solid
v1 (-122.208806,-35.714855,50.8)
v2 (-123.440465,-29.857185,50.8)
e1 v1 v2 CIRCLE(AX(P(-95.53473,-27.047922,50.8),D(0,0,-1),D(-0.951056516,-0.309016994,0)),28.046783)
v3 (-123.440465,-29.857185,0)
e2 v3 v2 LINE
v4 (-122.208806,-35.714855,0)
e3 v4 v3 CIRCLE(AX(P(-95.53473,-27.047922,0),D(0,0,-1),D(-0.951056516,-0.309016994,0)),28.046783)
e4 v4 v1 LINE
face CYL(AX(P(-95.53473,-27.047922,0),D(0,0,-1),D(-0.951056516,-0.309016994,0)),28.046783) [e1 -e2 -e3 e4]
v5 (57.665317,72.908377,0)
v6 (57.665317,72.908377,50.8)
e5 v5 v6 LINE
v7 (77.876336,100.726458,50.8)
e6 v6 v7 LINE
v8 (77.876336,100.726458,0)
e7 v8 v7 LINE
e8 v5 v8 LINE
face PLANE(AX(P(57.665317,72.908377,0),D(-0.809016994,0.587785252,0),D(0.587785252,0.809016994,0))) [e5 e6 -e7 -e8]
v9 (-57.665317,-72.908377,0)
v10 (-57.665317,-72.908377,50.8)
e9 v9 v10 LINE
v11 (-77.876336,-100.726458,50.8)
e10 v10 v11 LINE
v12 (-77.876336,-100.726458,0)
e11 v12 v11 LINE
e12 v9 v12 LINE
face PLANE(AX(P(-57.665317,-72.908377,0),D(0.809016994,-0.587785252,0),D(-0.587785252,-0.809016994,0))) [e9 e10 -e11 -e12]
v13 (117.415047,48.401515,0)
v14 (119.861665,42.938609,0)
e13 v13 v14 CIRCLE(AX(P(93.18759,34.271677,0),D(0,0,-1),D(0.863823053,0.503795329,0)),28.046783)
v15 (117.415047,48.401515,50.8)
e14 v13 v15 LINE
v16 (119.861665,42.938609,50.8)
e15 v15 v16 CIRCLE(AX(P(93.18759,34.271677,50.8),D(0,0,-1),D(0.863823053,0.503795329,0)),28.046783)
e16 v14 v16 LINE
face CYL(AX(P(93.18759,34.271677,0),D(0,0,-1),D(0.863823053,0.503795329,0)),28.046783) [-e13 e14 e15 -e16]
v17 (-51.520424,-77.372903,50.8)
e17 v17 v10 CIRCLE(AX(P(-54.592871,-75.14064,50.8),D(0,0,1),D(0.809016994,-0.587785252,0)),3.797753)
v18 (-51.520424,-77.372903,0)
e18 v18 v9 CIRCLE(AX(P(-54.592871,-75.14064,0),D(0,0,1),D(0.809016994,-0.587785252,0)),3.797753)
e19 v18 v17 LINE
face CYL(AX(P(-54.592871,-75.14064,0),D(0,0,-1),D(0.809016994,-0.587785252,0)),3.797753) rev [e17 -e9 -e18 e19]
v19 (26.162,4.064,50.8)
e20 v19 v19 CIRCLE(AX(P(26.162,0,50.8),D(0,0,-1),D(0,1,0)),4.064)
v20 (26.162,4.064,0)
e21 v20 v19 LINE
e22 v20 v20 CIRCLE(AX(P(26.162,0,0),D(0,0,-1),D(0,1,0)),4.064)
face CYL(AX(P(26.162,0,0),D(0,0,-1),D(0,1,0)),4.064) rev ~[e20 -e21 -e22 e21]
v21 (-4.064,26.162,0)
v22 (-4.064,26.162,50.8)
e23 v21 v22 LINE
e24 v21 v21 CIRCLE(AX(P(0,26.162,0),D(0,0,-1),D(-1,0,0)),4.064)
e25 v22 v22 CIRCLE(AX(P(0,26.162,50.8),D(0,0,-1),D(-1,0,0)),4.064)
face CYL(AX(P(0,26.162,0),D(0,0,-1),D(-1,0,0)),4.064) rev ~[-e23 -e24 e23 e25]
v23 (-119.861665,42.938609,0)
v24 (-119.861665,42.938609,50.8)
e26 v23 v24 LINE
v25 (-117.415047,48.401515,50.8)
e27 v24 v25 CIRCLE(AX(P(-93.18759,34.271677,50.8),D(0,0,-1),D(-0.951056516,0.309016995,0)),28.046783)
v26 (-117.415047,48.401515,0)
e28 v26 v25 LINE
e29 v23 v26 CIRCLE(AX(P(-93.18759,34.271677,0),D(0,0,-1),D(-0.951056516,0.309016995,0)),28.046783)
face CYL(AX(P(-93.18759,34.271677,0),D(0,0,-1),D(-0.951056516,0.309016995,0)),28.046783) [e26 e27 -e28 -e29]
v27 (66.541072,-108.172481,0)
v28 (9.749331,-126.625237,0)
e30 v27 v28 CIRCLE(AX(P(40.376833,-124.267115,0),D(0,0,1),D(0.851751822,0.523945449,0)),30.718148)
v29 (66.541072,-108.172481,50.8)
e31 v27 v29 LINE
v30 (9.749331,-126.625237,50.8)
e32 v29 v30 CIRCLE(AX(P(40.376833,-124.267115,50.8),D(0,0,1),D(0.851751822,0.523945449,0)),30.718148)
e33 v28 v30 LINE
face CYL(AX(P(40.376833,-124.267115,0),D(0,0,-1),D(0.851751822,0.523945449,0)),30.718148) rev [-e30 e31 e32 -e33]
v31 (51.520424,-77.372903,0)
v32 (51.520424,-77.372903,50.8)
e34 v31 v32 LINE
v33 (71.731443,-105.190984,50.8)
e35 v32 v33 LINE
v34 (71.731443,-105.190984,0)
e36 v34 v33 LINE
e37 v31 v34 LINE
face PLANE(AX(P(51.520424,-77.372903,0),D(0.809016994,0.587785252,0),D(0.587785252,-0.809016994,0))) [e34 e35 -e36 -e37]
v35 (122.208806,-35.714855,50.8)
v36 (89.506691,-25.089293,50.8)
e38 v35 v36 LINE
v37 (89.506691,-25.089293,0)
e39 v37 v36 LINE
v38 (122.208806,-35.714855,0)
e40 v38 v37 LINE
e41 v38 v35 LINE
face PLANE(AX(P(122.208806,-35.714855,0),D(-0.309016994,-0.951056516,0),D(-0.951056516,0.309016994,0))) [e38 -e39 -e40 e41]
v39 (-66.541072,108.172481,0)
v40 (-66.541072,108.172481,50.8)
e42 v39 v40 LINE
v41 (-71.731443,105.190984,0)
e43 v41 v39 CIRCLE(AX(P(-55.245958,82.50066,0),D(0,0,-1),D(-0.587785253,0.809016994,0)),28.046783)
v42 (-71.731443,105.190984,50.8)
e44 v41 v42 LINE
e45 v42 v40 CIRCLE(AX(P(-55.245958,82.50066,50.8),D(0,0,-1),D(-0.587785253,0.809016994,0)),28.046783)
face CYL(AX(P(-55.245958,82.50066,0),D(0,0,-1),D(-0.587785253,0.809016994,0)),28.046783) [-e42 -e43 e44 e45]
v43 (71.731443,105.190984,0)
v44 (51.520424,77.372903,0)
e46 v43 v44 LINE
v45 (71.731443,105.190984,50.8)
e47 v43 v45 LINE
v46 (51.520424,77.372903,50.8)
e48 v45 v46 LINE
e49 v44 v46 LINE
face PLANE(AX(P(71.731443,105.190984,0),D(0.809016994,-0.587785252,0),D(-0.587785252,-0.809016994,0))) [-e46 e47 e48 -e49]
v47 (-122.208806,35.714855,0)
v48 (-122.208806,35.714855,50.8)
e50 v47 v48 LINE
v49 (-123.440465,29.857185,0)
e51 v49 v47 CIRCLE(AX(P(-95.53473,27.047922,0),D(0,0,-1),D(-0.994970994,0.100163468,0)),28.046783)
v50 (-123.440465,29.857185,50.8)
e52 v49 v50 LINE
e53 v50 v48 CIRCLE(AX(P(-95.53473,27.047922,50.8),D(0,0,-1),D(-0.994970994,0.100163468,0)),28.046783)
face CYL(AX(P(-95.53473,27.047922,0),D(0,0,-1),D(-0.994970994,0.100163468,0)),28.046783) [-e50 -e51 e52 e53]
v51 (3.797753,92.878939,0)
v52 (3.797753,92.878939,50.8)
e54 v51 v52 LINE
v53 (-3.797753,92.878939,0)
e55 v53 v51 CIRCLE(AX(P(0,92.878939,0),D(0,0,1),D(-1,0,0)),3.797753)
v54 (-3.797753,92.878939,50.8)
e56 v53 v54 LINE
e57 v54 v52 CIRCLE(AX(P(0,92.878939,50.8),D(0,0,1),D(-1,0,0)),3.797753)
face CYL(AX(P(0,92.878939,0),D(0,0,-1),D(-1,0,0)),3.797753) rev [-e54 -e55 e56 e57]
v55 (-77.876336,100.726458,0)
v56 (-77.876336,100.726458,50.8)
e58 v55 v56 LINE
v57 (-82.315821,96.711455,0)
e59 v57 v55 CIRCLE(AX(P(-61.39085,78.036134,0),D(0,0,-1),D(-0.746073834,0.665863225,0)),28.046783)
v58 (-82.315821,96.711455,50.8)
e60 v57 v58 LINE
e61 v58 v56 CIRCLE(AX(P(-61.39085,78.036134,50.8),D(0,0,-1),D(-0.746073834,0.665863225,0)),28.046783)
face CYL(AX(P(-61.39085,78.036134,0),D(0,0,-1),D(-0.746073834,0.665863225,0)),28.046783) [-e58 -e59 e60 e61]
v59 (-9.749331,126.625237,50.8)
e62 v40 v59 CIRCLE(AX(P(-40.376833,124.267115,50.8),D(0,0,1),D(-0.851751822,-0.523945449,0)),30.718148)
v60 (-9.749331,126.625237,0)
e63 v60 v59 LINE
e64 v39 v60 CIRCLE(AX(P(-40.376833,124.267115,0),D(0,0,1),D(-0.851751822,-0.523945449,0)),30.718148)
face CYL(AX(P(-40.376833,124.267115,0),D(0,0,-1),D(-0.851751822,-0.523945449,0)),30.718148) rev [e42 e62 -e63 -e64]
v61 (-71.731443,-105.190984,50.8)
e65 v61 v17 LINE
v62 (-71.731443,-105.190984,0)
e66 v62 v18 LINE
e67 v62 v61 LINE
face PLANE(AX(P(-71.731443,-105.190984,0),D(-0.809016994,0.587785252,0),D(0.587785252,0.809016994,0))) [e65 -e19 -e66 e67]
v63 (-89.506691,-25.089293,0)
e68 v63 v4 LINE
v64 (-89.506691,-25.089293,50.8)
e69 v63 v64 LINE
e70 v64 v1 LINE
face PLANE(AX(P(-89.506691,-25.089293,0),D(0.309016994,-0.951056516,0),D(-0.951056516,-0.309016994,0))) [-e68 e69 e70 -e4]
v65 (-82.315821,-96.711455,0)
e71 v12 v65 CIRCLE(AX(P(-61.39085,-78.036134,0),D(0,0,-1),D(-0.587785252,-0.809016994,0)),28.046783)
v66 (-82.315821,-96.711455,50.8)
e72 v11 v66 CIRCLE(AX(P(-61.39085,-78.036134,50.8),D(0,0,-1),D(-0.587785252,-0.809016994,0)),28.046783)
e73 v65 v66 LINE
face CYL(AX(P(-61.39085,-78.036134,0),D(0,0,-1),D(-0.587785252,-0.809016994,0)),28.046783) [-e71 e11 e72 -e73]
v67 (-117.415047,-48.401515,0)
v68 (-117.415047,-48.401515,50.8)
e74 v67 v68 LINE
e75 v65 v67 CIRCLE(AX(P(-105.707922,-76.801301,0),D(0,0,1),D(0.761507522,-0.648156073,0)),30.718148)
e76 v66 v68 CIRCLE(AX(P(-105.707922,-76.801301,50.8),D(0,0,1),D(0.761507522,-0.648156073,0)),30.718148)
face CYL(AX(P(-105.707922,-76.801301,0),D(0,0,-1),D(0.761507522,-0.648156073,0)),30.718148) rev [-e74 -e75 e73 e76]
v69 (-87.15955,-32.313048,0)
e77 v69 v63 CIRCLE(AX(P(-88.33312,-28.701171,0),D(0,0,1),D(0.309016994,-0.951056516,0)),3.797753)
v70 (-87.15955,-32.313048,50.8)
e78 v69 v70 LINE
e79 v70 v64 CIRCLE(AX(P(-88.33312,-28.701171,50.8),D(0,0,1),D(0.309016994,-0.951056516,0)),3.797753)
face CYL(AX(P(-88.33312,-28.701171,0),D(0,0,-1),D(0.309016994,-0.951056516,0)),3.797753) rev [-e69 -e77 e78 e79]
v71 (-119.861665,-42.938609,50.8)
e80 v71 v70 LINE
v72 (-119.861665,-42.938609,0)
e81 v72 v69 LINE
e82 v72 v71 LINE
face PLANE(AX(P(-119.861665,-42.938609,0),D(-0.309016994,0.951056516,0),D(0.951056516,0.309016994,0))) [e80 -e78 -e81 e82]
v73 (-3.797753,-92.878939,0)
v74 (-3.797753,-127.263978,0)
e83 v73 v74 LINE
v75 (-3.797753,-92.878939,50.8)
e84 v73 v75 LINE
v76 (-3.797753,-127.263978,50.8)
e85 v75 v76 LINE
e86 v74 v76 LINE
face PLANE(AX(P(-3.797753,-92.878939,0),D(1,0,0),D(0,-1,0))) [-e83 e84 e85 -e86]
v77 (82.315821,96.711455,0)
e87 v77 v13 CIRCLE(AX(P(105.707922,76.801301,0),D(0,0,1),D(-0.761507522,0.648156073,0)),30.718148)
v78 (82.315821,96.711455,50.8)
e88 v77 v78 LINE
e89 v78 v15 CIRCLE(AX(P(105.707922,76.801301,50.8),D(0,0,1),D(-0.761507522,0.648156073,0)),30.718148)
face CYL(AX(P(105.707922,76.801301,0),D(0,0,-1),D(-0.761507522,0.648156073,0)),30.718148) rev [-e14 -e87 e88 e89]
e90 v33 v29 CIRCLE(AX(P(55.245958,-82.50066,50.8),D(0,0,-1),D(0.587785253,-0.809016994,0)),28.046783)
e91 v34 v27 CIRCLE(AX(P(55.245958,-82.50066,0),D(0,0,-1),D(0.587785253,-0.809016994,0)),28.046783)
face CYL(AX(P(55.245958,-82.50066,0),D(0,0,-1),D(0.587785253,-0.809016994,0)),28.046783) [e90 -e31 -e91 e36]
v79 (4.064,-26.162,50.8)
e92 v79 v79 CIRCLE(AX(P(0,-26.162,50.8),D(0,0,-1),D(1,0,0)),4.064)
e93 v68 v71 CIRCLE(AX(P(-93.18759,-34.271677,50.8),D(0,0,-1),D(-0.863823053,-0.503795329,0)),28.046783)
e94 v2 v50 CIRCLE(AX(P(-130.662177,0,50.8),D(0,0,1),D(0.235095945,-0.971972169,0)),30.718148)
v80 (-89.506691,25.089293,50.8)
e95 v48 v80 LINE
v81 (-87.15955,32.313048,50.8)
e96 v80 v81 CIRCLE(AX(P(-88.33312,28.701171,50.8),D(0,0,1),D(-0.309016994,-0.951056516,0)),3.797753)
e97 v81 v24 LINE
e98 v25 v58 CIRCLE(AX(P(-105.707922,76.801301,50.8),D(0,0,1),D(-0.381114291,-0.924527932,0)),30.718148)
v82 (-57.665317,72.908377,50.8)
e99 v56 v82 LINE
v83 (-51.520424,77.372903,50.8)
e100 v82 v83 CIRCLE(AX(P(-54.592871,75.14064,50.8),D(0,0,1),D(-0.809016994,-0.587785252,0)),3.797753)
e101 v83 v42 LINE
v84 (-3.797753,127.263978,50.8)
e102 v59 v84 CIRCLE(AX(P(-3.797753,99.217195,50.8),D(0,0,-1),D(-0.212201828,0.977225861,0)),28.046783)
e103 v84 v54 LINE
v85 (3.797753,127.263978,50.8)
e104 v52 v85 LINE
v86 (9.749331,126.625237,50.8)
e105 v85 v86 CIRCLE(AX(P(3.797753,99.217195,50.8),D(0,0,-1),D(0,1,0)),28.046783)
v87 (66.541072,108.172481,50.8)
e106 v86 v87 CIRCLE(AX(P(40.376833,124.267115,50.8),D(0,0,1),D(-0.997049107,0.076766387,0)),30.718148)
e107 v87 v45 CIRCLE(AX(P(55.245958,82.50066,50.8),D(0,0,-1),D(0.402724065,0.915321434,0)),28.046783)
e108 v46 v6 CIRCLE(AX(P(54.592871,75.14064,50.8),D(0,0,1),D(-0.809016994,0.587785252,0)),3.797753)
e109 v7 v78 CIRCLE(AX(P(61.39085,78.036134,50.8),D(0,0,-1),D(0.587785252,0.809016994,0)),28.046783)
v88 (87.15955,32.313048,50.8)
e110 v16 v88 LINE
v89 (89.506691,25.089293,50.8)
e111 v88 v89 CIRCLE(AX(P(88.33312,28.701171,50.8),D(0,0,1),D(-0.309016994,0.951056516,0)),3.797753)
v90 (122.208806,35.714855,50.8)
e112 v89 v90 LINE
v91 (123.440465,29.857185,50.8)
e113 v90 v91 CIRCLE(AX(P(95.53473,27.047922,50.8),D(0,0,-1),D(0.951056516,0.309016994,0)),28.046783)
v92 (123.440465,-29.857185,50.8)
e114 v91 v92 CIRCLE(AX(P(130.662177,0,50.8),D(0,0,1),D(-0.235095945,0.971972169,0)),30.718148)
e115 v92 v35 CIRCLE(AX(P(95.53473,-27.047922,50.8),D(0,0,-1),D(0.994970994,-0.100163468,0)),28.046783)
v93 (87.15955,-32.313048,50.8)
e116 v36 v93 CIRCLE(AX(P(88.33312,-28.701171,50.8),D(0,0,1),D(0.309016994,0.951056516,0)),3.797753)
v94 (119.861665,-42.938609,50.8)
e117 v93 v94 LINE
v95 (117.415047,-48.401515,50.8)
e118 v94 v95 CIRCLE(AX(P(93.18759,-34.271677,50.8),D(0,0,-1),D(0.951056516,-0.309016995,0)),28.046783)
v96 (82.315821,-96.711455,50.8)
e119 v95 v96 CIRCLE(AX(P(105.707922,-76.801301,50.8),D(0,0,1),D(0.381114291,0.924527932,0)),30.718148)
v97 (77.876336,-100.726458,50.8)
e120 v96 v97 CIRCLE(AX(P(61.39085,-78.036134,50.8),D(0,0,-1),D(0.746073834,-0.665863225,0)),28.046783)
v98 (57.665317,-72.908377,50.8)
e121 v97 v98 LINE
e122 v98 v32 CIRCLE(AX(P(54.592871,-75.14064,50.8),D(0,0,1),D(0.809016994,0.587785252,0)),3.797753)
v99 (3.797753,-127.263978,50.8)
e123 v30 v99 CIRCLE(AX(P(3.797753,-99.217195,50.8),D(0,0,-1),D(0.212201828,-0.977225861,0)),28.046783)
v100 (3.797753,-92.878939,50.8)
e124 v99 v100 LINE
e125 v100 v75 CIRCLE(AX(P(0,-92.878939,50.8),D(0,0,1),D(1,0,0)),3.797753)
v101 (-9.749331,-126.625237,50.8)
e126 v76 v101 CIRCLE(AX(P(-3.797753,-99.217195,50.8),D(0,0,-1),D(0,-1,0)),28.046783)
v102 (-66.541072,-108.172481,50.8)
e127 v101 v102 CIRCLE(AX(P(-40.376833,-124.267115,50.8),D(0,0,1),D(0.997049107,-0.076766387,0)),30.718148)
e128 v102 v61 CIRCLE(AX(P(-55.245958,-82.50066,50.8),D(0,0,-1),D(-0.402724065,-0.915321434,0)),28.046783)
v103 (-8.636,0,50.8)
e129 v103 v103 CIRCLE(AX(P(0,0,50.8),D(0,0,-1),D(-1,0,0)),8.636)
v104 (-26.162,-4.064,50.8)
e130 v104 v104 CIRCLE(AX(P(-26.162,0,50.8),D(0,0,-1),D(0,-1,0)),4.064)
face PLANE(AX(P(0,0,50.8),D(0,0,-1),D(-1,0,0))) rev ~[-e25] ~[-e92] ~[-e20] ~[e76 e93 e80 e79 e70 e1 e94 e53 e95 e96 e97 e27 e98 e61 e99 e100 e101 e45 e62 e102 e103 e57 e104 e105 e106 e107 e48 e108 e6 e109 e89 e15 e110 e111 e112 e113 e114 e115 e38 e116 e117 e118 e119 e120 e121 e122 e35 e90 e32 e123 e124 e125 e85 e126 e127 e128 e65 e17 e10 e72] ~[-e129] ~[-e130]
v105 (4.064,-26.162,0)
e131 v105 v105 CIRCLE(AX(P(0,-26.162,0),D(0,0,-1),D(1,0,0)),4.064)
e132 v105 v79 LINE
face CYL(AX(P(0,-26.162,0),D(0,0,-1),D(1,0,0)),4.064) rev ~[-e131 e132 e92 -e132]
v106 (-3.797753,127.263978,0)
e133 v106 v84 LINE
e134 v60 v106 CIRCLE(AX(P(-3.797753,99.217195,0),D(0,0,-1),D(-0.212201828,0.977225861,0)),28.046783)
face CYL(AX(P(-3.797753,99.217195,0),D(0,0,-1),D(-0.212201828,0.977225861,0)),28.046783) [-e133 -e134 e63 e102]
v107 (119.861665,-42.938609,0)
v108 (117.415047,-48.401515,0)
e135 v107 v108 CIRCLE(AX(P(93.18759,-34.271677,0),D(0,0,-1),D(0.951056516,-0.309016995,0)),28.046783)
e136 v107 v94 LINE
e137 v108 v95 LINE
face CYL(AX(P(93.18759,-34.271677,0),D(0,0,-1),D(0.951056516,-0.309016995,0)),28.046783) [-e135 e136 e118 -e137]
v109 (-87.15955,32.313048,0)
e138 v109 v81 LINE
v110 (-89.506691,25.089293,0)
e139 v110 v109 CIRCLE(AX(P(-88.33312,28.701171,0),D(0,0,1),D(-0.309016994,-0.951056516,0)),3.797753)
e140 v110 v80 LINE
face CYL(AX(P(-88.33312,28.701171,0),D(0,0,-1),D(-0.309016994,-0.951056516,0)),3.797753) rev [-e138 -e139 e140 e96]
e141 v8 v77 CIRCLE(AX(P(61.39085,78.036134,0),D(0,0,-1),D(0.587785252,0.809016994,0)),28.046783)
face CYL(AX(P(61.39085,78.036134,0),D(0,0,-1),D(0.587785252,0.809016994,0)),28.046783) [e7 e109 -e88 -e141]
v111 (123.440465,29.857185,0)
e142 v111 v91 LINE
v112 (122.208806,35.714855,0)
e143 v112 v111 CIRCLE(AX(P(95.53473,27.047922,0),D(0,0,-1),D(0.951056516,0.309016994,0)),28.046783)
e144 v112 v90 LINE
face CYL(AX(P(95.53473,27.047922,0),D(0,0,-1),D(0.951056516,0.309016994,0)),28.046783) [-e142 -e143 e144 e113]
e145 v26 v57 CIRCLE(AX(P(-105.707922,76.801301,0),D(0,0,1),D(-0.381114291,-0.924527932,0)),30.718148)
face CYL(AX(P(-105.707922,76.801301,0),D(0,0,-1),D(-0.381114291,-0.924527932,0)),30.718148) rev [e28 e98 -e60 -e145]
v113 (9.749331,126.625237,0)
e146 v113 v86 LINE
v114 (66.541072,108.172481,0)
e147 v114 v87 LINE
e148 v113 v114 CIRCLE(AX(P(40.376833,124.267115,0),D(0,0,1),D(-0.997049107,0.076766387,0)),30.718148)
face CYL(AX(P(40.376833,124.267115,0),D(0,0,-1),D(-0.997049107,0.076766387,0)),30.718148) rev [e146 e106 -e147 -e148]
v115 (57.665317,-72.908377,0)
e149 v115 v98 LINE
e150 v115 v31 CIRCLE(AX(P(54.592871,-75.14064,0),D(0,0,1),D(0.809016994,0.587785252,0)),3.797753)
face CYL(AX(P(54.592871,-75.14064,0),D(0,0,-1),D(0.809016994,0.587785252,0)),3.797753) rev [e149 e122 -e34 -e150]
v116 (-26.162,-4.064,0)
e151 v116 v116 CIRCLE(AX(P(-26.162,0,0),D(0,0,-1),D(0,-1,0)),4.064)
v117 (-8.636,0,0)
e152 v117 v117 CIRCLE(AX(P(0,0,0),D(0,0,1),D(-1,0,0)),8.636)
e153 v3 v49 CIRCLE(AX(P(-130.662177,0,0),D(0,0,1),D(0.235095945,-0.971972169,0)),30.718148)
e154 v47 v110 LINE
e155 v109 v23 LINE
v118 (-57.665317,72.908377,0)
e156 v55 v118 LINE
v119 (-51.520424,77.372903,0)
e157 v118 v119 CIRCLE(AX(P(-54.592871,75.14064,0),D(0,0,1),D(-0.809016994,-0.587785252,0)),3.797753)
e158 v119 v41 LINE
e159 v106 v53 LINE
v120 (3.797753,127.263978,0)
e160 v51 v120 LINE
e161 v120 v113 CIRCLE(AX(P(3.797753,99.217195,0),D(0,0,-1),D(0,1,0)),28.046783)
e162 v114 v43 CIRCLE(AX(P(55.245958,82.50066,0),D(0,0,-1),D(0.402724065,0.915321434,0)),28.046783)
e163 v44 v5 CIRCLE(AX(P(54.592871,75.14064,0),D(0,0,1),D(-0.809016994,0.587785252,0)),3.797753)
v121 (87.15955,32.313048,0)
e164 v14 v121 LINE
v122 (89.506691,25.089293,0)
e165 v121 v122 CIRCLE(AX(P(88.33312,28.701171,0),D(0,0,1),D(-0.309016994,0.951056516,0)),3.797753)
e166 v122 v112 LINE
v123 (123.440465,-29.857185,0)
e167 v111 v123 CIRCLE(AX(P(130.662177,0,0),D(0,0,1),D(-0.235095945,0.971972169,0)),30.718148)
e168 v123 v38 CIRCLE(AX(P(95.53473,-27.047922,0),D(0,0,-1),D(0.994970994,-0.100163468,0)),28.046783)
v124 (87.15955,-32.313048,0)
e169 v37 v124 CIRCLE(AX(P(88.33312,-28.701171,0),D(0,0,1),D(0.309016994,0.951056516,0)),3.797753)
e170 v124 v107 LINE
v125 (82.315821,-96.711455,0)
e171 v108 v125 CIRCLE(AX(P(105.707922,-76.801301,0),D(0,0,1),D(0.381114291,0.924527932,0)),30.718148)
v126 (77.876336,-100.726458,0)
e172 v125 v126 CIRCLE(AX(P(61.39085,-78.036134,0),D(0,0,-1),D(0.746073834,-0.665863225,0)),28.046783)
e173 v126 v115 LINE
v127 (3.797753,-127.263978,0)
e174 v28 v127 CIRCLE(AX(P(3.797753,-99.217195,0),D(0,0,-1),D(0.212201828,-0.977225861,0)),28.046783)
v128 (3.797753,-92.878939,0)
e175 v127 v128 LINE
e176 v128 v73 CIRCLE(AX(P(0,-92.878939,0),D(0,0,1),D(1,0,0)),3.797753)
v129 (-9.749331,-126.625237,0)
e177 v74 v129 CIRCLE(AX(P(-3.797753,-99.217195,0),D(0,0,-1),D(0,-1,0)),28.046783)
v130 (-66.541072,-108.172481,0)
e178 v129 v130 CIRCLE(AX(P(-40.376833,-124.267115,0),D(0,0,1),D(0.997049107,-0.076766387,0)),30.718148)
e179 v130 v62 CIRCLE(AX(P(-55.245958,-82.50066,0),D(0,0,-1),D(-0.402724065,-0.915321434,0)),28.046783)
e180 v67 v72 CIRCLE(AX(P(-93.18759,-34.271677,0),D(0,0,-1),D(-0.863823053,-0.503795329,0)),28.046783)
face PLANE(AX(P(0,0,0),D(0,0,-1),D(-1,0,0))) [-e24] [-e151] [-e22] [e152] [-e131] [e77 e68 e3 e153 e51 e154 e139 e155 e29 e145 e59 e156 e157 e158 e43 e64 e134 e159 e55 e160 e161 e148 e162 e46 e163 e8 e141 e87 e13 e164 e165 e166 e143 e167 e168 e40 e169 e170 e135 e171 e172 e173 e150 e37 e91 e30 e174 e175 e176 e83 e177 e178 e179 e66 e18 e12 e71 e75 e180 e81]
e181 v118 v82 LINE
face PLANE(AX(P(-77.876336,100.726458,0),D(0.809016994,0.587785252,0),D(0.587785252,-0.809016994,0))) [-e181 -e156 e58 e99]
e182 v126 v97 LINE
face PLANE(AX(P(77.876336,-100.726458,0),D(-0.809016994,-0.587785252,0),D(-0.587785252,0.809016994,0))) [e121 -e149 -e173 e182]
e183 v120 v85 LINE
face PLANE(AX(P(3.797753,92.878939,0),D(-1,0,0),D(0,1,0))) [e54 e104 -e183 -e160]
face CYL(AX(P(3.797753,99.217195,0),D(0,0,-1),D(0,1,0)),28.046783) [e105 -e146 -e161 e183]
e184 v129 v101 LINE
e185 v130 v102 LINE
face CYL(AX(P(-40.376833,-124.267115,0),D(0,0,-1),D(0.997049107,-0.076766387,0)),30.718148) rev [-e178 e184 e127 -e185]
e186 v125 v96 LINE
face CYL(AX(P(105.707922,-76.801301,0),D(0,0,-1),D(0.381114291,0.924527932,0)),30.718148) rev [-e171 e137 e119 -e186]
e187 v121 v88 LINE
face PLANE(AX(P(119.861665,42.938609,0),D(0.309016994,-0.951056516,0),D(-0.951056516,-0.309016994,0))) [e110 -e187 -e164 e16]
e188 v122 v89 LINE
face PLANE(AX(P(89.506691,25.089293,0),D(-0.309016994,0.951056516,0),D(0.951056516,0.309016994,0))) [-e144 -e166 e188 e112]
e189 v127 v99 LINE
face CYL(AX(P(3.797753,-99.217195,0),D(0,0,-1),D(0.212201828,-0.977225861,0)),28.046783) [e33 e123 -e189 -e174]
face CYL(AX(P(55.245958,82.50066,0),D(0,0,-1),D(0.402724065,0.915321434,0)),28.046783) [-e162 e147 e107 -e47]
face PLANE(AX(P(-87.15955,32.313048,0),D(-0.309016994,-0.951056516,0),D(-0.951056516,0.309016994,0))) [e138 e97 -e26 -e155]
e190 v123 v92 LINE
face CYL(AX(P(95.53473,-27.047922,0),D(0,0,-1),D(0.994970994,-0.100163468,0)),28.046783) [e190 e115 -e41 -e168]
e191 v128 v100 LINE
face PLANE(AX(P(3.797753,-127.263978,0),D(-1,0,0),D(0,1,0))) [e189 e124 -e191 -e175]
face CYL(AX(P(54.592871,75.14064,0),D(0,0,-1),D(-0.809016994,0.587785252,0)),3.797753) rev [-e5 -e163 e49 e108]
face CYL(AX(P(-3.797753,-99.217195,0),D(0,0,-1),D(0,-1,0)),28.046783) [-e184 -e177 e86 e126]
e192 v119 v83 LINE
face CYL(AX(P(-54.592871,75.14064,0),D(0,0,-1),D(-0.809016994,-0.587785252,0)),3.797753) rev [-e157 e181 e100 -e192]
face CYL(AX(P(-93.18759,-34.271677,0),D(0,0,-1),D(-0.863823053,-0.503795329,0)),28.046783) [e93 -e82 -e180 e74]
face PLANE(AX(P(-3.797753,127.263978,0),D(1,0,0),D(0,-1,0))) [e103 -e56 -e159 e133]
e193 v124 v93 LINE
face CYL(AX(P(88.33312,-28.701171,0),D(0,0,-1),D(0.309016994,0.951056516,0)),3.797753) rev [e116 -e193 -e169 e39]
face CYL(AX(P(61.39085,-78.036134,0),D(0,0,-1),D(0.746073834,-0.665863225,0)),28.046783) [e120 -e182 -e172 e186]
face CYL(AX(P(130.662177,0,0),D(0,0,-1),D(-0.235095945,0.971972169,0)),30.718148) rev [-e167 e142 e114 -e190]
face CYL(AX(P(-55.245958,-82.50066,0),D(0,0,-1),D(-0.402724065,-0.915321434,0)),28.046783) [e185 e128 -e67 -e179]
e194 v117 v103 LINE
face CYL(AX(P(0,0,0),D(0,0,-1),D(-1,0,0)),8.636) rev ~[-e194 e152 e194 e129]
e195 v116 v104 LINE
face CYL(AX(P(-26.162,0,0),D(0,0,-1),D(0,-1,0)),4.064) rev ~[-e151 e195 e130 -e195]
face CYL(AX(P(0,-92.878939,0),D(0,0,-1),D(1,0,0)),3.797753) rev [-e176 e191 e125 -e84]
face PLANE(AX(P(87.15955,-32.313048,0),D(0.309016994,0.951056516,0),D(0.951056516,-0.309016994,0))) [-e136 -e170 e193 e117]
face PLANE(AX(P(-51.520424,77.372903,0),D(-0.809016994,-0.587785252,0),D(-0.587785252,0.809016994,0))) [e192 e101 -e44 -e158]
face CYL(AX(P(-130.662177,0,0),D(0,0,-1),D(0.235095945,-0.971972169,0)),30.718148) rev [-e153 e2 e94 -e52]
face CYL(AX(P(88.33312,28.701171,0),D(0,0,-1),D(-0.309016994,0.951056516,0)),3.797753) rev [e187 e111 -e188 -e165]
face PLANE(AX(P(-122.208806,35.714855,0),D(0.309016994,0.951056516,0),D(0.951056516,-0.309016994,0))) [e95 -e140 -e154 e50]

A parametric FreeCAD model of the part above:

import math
import FreeCAD as App
import Part
import Sketcher
Q = App.Units.Quantity

doc = App.newDocument("Part")
body = doc.addObject("PartDesign::Body", "Body")

# Sketch on XY plane
sketch1 = body.newObject("Sketcher::SketchObject", "Sketch")
sketch1.AttachmentSupport = (doc.getObject("XY_Plane"), [""])
sketch1.MapMode = "FlatFace"
sketch1.addGeometry(Part.LineSegment(App.Vector(-3.8, 92.9, 0), App.Vector(-3.8, 127.3, 0)), False)
sketch1.addGeometry(Part.ArcOfCircle(Part.Circle(App.Vector(-3.8, 99.2, 0), App.Vector(0, 0, 1), 28), math.radians(90), math.radians(102.25)), False)
sketch1.addGeometry(Part.ArcOfCircle(Part.Circle(App.Vector(-40.4, 124.3, 0), App.Vector(0, 0, 1), 30.7), math.radians(-148), math.radians(4)), False)
sketch1.addGeometry(Part.ArcOfCircle(Part.Circle(App.Vector(-55.2, 82.5, 0), App.Vector(0, 0, 1), 28), math.radians(113.75), math.radians(126)), False)
sketch1.addGeometry(Part.LineSegment(App.Vector(-71.7, 105.2, 0), App.Vector(-51.5, 77.4, 0)), False)
sketch1.addGeometry(Part.ArcOfCircle(Part.Circle(App.Vector(-54.6, 75.1, 0), App.Vector(0, 0, 1), 3.8), math.radians(-144), math.radians(36)), False)
sketch1.addGeometry(Part.LineSegment(App.Vector(-57.7, 72.9, 0), App.Vector(-77.9, 100.7, 0)), False)
sketch1.addGeometry(Part.ArcOfCircle(Part.Circle(App.Vector(-61.4, 78, 0), App.Vector(0, 0, 1), 28), math.radians(126), math.radians(138.25)), False)
sketch1.addGeometry(Part.ArcOfCircle(Part.Circle(App.Vector(-105.7, 76.8, 0), App.Vector(0, 0, 1), 30.7), math.radians(-112), math.radians(40)), False)
sketch1.addGeometry(Part.ArcOfCircle(Part.Circle(App.Vector(-93.2, 34.3, 0), App.Vector(0, 0, 1), 28), math.radians(149.75), math.radians(162)), False)
sketch1.addGeometry(Part.LineSegment(App.Vector(-119.9, 42.9, 0), App.Vector(-87.2, 32.3, 0)), False)
sketch1.addGeometry(Part.ArcOfCircle(Part.Circle(App.Vector(-88.3, 28.7, 0), App.Vector(0, 0, 1), 3.8), math.radians(-108), math.radians(72)), False)
sketch1.addGeometry(Part.LineSegment(App.Vector(-89.5, 25.1, 0), App.Vector(-122.2, 35.7, 0)), False)
sketch1.addGeometry(Part.ArcOfCircle(Part.Circle(App.Vector(-95.5, 27, 0), App.Vector(0, 0, 1), 28), math.radians(162), math.radians(174.25)), False)
sketch1.addGeometry(Part.ArcOfCircle(Part.Circle(App.Vector(-130.7, 0, 0), App.Vector(0, 0, 1), 30.7), math.radians(-76), math.radians(76)), False)
sketch1.addGeometry(Part.ArcOfCircle(Part.Circle(App.Vector(-95.5, -27, 0), App.Vector(0, 0, 1), 28), math.radians(-174.25), math.radians(-162)), False)
sketch1.addGeometry(Part.LineSegment(App.Vector(-122.2, -35.7, 0), App.Vector(-89.5, -25.1, 0)), False)
sketch1.addGeometry(Part.ArcOfCircle(Part.Circle(App.Vector(-88.3, -28.7, 0), App.Vector(0, 0, 1), 3.8), math.radians(-72), math.radians(108)), False)
sketch1.addGeometry(Part.LineSegment(App.Vector(-87.2, -32.3, 0), App.Vector(-119.9, -42.9, 0)), False)
sketch1.addGeometry(Part.ArcOfCircle(Part.Circle(App.Vector(-93.2, -34.3, 0), App.Vector(0, 0, 1), 28), math.radians(-162), math.radians(-149.75)), False)
sketch1.addGeometry(Part.ArcOfCircle(Part.Circle(App.Vector(-105.7, -76.8, 0), App.Vector(0, 0, 1), 30.7), math.radians(-40), math.radians(112)), False)
sketch1.addGeometry(Part.ArcOfCircle(Part.Circle(App.Vector(-61.4, -78, 0), App.Vector(0, 0, 1), 28), math.radians(-138.25), math.radians(-126)), False)
sketch1.addGeometry(Part.LineSegment(App.Vector(-77.9, -100.7, 0), App.Vector(-57.7, -72.9, 0)), False)
sketch1.addGeometry(Part.ArcOfCircle(Part.Circle(App.Vector(-54.6, -75.1, 0), App.Vector(0, 0, 1), 3.8), math.radians(-36), math.radians(144)), False)
sketch1.addGeometry(Part.LineSegment(App.Vector(-51.5, -77.4, 0), App.Vector(-71.7, -105.2, 0)), False)
sketch1.addGeometry(Part.ArcOfCircle(Part.Circle(App.Vector(-55.2, -82.5, 0), App.Vector(0, 0, 1), 28), math.radians(-126), math.radians(-113.75)), False)
sketch1.addGeometry(Part.ArcOfCircle(Part.Circle(App.Vector(-40.4, -124.3, 0), App.Vector(0, 0, 1), 30.7), math.radians(-4), math.radians(148)), False)
sketch1.addGeometry(Part.ArcOfCircle(Part.Circle(App.Vector(-3.8, -99.2, 0), App.Vector(0, 0, 1), 28), math.radians(-102.25), math.radians(-90)), False)
sketch1.addGeometry(Part.LineSegment(App.Vector(-3.8, -127.3, 0), App.Vector(-3.8, -92.9, 0)), False)
sketch1.addGeometry(Part.ArcOfCircle(Part.Circle(App.Vector(0, -92.9, 0), App.Vector(0, 0, 1), 3.8), math.radians(0), math.radians(180)), False)
sketch1.addGeometry(Part.LineSegment(App.Vector(3.8, -92.9, 0), App.Vector(3.8, -127.3, 0)), False)
sketch1.addGeometry(Part.ArcOfCircle(Part.Circle(App.Vector(3.8, -99.2, 0), App.Vector(0, 0, 1), 28), math.radians(-90), math.radians(-77.75)), False)
sketch1.addGeometry(Part.ArcOfCircle(Part.Circle(App.Vector(40.4, -124.3, 0), App.Vector(0, 0, 1), 30.7), math.radians(32), math.radians(184)), False)
sketch1.addGeometry(Part.ArcOfCircle(Part.Circle(App.Vector(55.2, -82.5, 0), App.Vector(0, 0, 1), 28), math.radians(-66.25), math.radians(-54)), False)
sketch1.addGeometry(Part.LineSegment(App.Vector(71.7, -105.2, 0), App.Vector(51.5, -77.4, 0)), False)
sketch1.addGeometry(Part.ArcOfCircle(Part.Circle(App.Vector(54.6, -75.1, 0), App.Vector(0, 0, 1), 3.8), math.radians(36), math.radians(216)), False)
sketch1.addGeometry(Part.LineSegment(App.Vector(57.7, -72.9, 0), App.Vector(77.9, -100.7, 0)), False)
sketch1.addGeometry(Part.ArcOfCircle(Part.Circle(App.Vector(61.4, -78, 0), App.Vector(0, 0, 1), 28), math.radians(-54), math.radians(-41.75)), False)
sketch1.addGeometry(Part.ArcOfCircle(Part.Circle(App.Vector(105.7, -76.8, 0), App.Vector(0, 0, 1), 30.7), math.radians(68), math.radians(220)), False)
sketch1.addGeometry(Part.ArcOfCircle(Part.Circle(App.Vector(93.2, -34.3, 0), App.Vector(0, 0, 1), 28), math.radians(-30.25), math.radians(-18)), False)
sketch1.addGeometry(Part.LineSegment(App.Vector(119.9, -42.9, 0), App.Vector(87.2, -32.3, 0)), False)
sketch1.addGeometry(Part.ArcOfCircle(Part.Circle(App.Vector(88.3, -28.7, 0), App.Vector(0, 0, 1), 3.8), math.radians(72), math.radians(252)), False)
sketch1.addGeometry(Part.LineSegment(App.Vector(89.5, -25.1, 0), App.Vector(122.2, -35.7, 0)), False)
sketch1.addGeometry(Part.ArcOfCircle(Part.Circle(App.Vector(95.5, -27, 0), App.Vector(0, 0, 1), 28), math.radians(-18), math.radians(-5.75)), False)
sketch1.addGeometry(Part.ArcOfCircle(Part.Circle(App.Vector(130.7, 0, 0), App.Vector(0, 0, 1), 30.7), math.radians(104), math.radians(256)), False)
sketch1.addGeometry(Part.ArcOfCircle(Part.Circle(App.Vector(95.5, 27, 0), App.Vector(0, 0, 1), 28), math.radians(5.75), math.radians(18)), False)
sketch1.addGeometry(Part.LineSegment(App.Vector(122.2, 35.7, 0), App.Vector(89.5, 25.1, 0)), False)
sketch1.addGeometry(Part.ArcOfCircle(Part.Circle(App.Vector(88.3, 28.7, 0), App.Vector(0, 0, 1), 3.8), math.radians(108), math.radians(288)), False)
sketch1.addGeometry(Part.LineSegment(App.Vector(87.2, 32.3, 0), App.Vector(119.9, 42.9, 0)), False)
sketch1.addGeometry(Part.ArcOfCircle(Part.Circle(App.Vector(93.2, 34.3, 0), App.Vector(0, 0, 1), 28), math.radians(18), math.radians(30.25)), False)
sketch1.addGeometry(Part.ArcOfCircle(Part.Circle(App.Vector(105.7, 76.8, 0), App.Vector(0, 0, 1), 30.7), math.radians(140), math.radians(292)), False)
sketch1.addGeometry(Part.ArcOfCircle(Part.Circle(App.Vector(61.4, 78, 0), App.Vector(0, 0, 1), 28), math.radians(41.75), math.radians(54)), False)
sketch1.addGeometry(Part.LineSegment(App.Vector(77.9, 100.7, 0), App.Vector(57.7, 72.9, 0)), False)
sketch1.addGeometry(Part.ArcOfCircle(Part.Circle(App.Vector(54.6, 75.1, 0), App.Vector(0, 0, 1), 3.8), math.radians(144), math.radians(324)), False)
sketch1.addGeometry(Part.LineSegment(App.Vector(51.5, 77.4, 0), App.Vector(71.7, 105.2, 0)), False)
sketch1.addGeometry(Part.ArcOfCircle(Part.Circle(App.Vector(55.2, 82.5, 0), App.Vector(0, 0, 1), 28), math.radians(54), math.radians(66.25)), False)
sketch1.addGeometry(Part.ArcOfCircle(Part.Circle(App.Vector(40.4, 124.3, 0), App.Vector(0, 0, 1), 30.7), math.radians(176), math.radians(328)), False)
sketch1.addGeometry(Part.ArcOfCircle(Part.Circle(App.Vector(3.8, 99.2, 0), App.Vector(0, 0, 1), 28), math.radians(77.75), math.radians(90)), False)
sketch1.addGeometry(Part.LineSegment(App.Vector(3.8, 127.3, 0), App.Vector(3.8, 92.9, 0)), False)
sketch1.addGeometry(Part.ArcOfCircle(Part.Circle(App.Vector(0, 92.9, 0), App.Vector(0, 0, 1), 3.8), math.radians(180), math.radians(360)), False)
sketch1.addConstraint(Sketcher.Constraint("Coincident", 0, 2, 1, 1))
sketch1.addConstraint(Sketcher.Constraint("Coincident", 1, 2, 2, 2))
sketch1.addConstraint(Sketcher.Constraint("Coincident", 2, 1, 3, 1))
sketch1.addConstraint(Sketcher.Constraint("Coincident", 3, 2, 4, 1))
sketch1.addConstraint(Sketcher.Constraint("Tangent", 4, 2, 5, 2))
sketch1.addConstraint(Sketcher.Constraint("Tangent", 5, 1, 6, 1))
sketch1.addConstraint(Sketcher.Constraint("Coincident", 6, 2, 7, 1))
sketch1.addConstraint(Sketcher.Constraint("Coincident", 7, 2, 8, 2))
sketch1.addConstraint(Sketcher.Constraint("Coincident", 8, 1, 9, 1))
sketch1.addConstraint(Sketcher.Constraint("Coincident", 9, 2, 10, 1))
sketch1.addConstraint(Sketcher.Constraint("Tangent", 10, 2, 11, 2))
sketch1.addConstraint(Sketcher.Constraint("Tangent", 11, 1, 12, 1))
sketch1.addConstraint(Sketcher.Constraint("Coincident", 12, 2, 13, 1))
sketch1.addConstraint(Sketcher.Constraint("Coincident", 13, 2, 14, 2))
sketch1.addConstraint(Sketcher.Constraint("Coincident", 14, 1, 15, 1))
sketch1.addConstraint(Sketcher.Constraint("Coincident", 15, 2, 16, 1))
sketch1.addConstraint(Sketcher.Constraint("Tangent", 16, 2, 17, 2))
sketch1.addConstraint(Sketcher.Constraint("Tangent", 17, 1, 18, 1))
sketch1.addConstraint(Sketcher.Constraint("Coincident", 18, 2, 19, 1))
sketch1.addConstraint(Sketcher.Constraint("Coincident", 19, 2, 20, 2))
sketch1.addConstraint(Sketcher.Constraint("Coincident", 20, 1, 21, 1))
sketch1.addConstraint(Sketcher.Constraint("Coincident", 21, 2, 22, 1))
sketch1.addConstraint(Sketcher.Constraint("Tangent", 22, 2, 23, 2))
sketch1.addConstraint(Sketcher.Constraint("Tangent", 23, 1, 24, 1))
sketch1.addConstraint(Sketcher.Constraint("Coincident", 24, 2, 25, 1))
sketch1.addConstraint(Sketcher.Constraint("Coincident", 25, 2, 26, 2))
sketch1.addConstraint(Sketcher.Constraint("Coincident", 26, 1, 27, 1))
sketch1.addConstraint(Sketcher.Constraint("Coincident", 27, 2, 28, 1))
sketch1.addConstraint(Sketcher.Constraint("Tangent", 28, 2, 29, 2))
sketch1.addConstraint(Sketcher.Constraint("Tangent", 29, 1, 30, 1))
sketch1.addConstraint(Sketcher.Constraint("Coincident", 30, 2, 31, 1))
sketch1.addConstraint(Sketcher.Constraint("Coincident", 31, 2, 32, 2))
sketch1.addConstraint(Sketcher.Constraint("Coincident", 32, 1, 33, 1))
sketch1.addConstraint(Sketcher.Constraint("Coincident", 33, 2, 34, 1))
sketch1.addConstraint(Sketcher.Constraint("Tangent", 34, 2, 35, 2))
sketch1.addConstraint(Sketcher.Constraint("Tangent", 35, 1, 36, 1))
sketch1.addConstraint(Sketcher.Constraint("Coincident", 36, 2, 37, 1))
sketch1.addConstraint(Sketcher.Constraint("Coincident", 37, 2, 38, 2))
sketch1.addConstraint(Sketcher.Constraint("Coincident", 38, 1, 39, 1))
sketch1.addConstraint(Sketcher.Constraint("Coincident", 39, 2, 40, 1))
sketch1.addConstraint(Sketcher.Constraint("Tangent", 40, 2, 41, 2))
sketch1.addConstraint(Sketcher.Constraint("Tangent", 41, 1, 42, 1))
sketch1.addConstraint(Sketcher.Constraint("Coincident", 42, 2, 43, 1))
sketch1.addConstraint(Sketcher.Constraint("Coincident", 43, 2, 44, 2))
sketch1.addConstraint(Sketcher.Constraint("Coincident", 44, 1, 45, 1))
sketch1.addConstraint(Sketcher.Constraint("Coincident", 45, 2, 46, 1))
sketch1.addConstraint(Sketcher.Constraint("Tangent", 46, 2, 47, 2))
sketch1.addConstraint(Sketcher.Constraint("Tangent", 47, 1, 48, 1))
sketch1.addConstraint(Sketcher.Constraint("Coincident", 48, 2, 49, 1))
sketch1.addConstraint(Sketcher.Constraint("Coincident", 49, 2, 50, 2))
sketch1.addConstraint(Sketcher.Constraint("Coincident", 50, 1, 51, 1))
sketch1.addConstraint(Sketcher.Constraint("Coincident", 51, 2, 52, 1))
sketch1.addConstraint(Sketcher.Constraint("Tangent", 52, 2, 53, 2))
sketch1.addConstraint(Sketcher.Constraint("Tangent", 53, 1, 54, 1))
sketch1.addConstraint(Sketcher.Constraint("Coincident", 54, 2, 55, 1))
sketch1.addConstraint(Sketcher.Constraint("Coincident", 55, 2, 56, 2))
sketch1.addConstraint(Sketcher.Constraint("Coincident", 56, 1, 57, 1))
sketch1.addConstraint(Sketcher.Constraint("Coincident", 57, 2, 58, 1))
sketch1.addConstraint(Sketcher.Constraint("Tangent", 58, 2, 59, 2))
sketch1.addConstraint(Sketcher.Constraint("Tangent", 59, 1, 0, 1))
sketch1.addConstraint(Sketcher.Constraint("Vertical", 0))
sketch1.addConstraint(Sketcher.Constraint("Vertical", 28))
sketch1.addConstraint(Sketcher.Constraint("Vertical", 30))
sketch1.addConstraint(Sketcher.Constraint("Vertical", 58))
sketch1.addConstraint(Sketcher.Constraint("Equal", 1, 3))
sketch1.addConstraint(Sketcher.Constraint("Equal", 3, 7))
sketch1.addConstraint(Sketcher.Constraint("Equal", 2, 8))
sketch1.addConstraint(Sketcher.Constraint("Equal", 7, 9))
sketch1.addConstraint(Sketcher.Constraint("Equal", 5, 11))
sketch1.addConstraint(Sketcher.Constraint("Equal", 9, 13))
sketch1.addConstraint(Sketcher.Constraint("Equal", 8, 14))
sketch1.addConstraint(Sketcher.Constraint("Equal", 13, 15))
sketch1.addConstraint(Sketcher.Constraint("Equal", 11, 17))
sketch1.addConstraint(Sketcher.Constraint("Equal", 15, 19))
sketch1.addConstraint(Sketcher.Constraint("Equal", 14, 20))
sketch1.addConstraint(Sketcher.Constraint("Equal", 19, 21))
sketch1.addConstraint(Sketcher.Constraint("Equal", 17, 23))
sketch1.addConstraint(Sketcher.Constraint("Equal", 21, 25))
sketch1.addConstraint(Sketcher.Constraint("Equal", 20, 26))
sketch1.addConstraint(Sketcher.Constraint("Equal", 25, 27))
sketch1.addConstraint(Sketcher.Constraint("Equal", 23, 29))
sketch1.addConstraint(Sketcher.Constraint("Equal", 27, 31))
sketch1.addConstraint(Sketcher.Constraint("Equal", 26, 32))
sketch1.addConstraint(Sketcher.Constraint("Equal", 31, 33))
sketch1.addConstraint(Sketcher.Constraint("Equal", 29, 35))
sketch1.addConstraint(Sketcher.Constraint("Equal", 33, 37))
sketch1.addConstraint(Sketcher.Constraint("Equal", 32, 38))
sketch1.addConstraint(Sketcher.Constraint("Equal", 37, 39))
sketch1.addConstraint(Sketcher.Constraint("Equal", 35, 41))
sketch1.addConstraint(Sketcher.Constraint("Equal", 39, 43))
sketch1.addConstraint(Sketcher.Constraint("Equal", 38, 44))
sketch1.addConstraint(Sketcher.Constraint("Equal", 43, 45))
sketch1.addConstraint(Sketcher.Constraint("Equal", 41, 47))
sketch1.addConstraint(Sketcher.Constraint("Equal", 45, 49))
sketch1.addConstraint(Sketcher.Constraint("Equal", 44, 50))
sketch1.addConstraint(Sketcher.Constraint("Equal", 49, 51))
sketch1.addConstraint(Sketcher.Constraint("Equal", 47, 53))
sketch1.addConstraint(Sketcher.Constraint("Equal", 51, 55))
sketch1.addConstraint(Sketcher.Constraint("Equal", 50, 56))
sketch1.addConstraint(Sketcher.Constraint("Equal", 55, 57))
sketch1.addConstraint(Sketcher.Constraint("Equal", 53, 59))
sketch1.addConstraint(Sketcher.Constraint("Symmetric", 1, 3, 31, 3, -1, 1))
sketch1.addConstraint(Sketcher.Constraint("Symmetric", 2, 3, 32, 3, -1, 1))
sketch1.addConstraint(Sketcher.Constraint("Symmetric", 3, 3, 33, 3, -1, 1))
sketch1.addConstraint(Sketcher.Constraint("Symmetric", 5, 3, 35, 3, -1, 1))
sketch1.addConstraint(Sketcher.Constraint("Symmetric", 7, 3, 37, 3, -1, 1))
sketch1.addConstraint(Sketcher.Constraint("Symmetric", 8, 3, 38, 3, -1, 1))
sketch1.addConstraint(Sketcher.Constraint("Symmetric", 9, 3, 39, 3, -1, 1))
sketch1.addConstraint(Sketcher.Constraint("Symmetric", 11, 3, 41, 3, -1, 1))
sketch1.addConstraint(Sketcher.Constraint("Symmetric", 13, 3, 43, 3, -1, 1))
sketch1.addConstraint(Sketcher.Constraint("Symmetric", 14, 3, 44, 3, -1, 1))
sketch1.addConstraint(Sketcher.Constraint("Symmetric", 15, 3, 45, 3, -1, 1))
sketch1.addConstraint(Sketcher.Constraint("Symmetric", 17, 3, 47, 3, -1, 1))
sketch1.addConstraint(Sketcher.Constraint("Symmetric", 19, 3, 49, 3, -1, 1))
sketch1.addConstraint(Sketcher.Constraint("Symmetric", 20, 3, 50, 3, -1, 1))
sketch1.addConstraint(Sketcher.Constraint("Symmetric", 21, 3, 51, 3, -1, 1))
sketch1.addConstraint(Sketcher.Constraint("Symmetric", 23, 3, 53, 3, -1, 1))
sketch1.addConstraint(Sketcher.Constraint("Symmetric", 25, 3, 55, 3, -1, 1))
sketch1.addConstraint(Sketcher.Constraint("Symmetric", 26, 3, 56, 3, -1, 1))
sketch1.addConstraint(Sketcher.Constraint("Symmetric", 27, 3, 57, 3, -1, 1))
sketch1.addConstraint(Sketcher.Constraint("Symmetric", 29, 3, 59, 3, -1, 1))
sketch1.addConstraint(Sketcher.Constraint("Symmetric", 27, 3, 31, 3, -2))
sketch1.addConstraint(Sketcher.Constraint("Symmetric", 26, 3, 32, 3, -2))
sketch1.addConstraint(Sketcher.Constraint("Symmetric", 25, 3, 33, 3, -2))
sketch1.addConstraint(Sketcher.Constraint("Symmetric", 23, 3, 35, 3, -2))
sketch1.addConstraint(Sketcher.Constraint("Symmetric", 21, 3, 37, 3, -2))
sketch1.addConstraint(Sketcher.Constraint("Symmetric", 20, 3, 38, 3, -2))
sketch1.addConstraint(Sketcher.Constraint("Symmetric", 19, 3, 39, 3, -2))
sketch1.addConstraint(Sketcher.Constraint("Symmetric", 17, 3, 41, 3, -2))
sketch1.addConstraint(Sketcher.Constraint("Symmetric", 15, 3, 43, 3, -2))
sketch1.addConstraint(Sketcher.Constraint("PointOnObject", 14, 3, -1))
sketch1.addConstraint(Sketcher.Constraint("PointOnObject", 29, 3, -2))
sketch1.addConstraint(Sketcher.Constraint("Parallel", 4, 6))
sketch1.addConstraint(Sketcher.Constraint("Parallel", 10, 12))
sketch1.addConstraint(Sketcher.Constraint("Parallel", 16, 18))
sketch1.addConstraint(Sketcher.Constraint("Parallel", 22, 24))
sketch1.addConstraint(Sketcher.Constraint("Parallel", 6, 34))
sketch1.addConstraint(Sketcher.Constraint("Parallel", 34, 36))
sketch1.addConstraint(Sketcher.Constraint("Parallel", 12, 40))
sketch1.addConstraint(Sketcher.Constraint("Parallel", 40, 42))
sketch1.addConstraint(Sketcher.Constraint("Parallel", 18, 46))
sketch1.addConstraint(Sketcher.Constraint("Parallel", 46, 48))
sketch1.addConstraint(Sketcher.Constraint("Parallel", 24, 52))
sketch1.addConstraint(Sketcher.Constraint("Parallel", 52, 54))
sketch1.addConstraint(Sketcher.Constraint("Horizontal", 24, 2, 33, 2))
sketch1.addConstraint(Sketcher.Constraint("Horizontal", 18, 2, 39, 2))
sketch1.addConstraint(Sketcher.Constraint("Vertical", 27, 3, 0, 2))
sketch1.addConstraint(Sketcher.Constraint("Equal", 4, 6))
sketch1.addConstraint(Sketcher.Constraint("Equal", 6, 10))
sketch1.addConstraint(Sketcher.Constraint("Equal", 10, 12))
sketch1.addConstraint(Sketcher.Constraint("Angle", 4, Q("-54 deg")))
sketch1.addConstraint(Sketcher.Constraint("Angle", 10, Q("-18 deg")))
sketch1.addConstraint(Sketcher.Constraint("Radius", 2, 30.718148))
sketch1.addConstraint(Sketcher.Constraint("Radius", 1, 28.046783))
sketch1.addConstraint(Sketcher.Constraint("Radius", 5, 3.797753))
sketch1.addConstraint(Sketcher.Constraint("DistanceY", 0, 1, 0, 2, 34.385039))
sketch1.addConstraint(Sketcher.Constraint("DistanceY", -1, 1, 8, 3, 76.801301))
sketch1.addConstraint(Sketcher.Constraint("Distance", 4, 34.385039))
sketch1.addConstraint(Sketcher.Constraint("DistanceY", -1, 1, 3, 3, 82.50066))
sketch1.addConstraint(Sketcher.Constraint("DistanceX", 5, 3, -1, 1, 54.592871))
sketch1.addConstraint(Sketcher.Constraint("DistanceY", -1, 1, 5, 3, 75.14064))
sketch1.addConstraint(Sketcher.Constraint("DistanceX", 7, 3, -1, 1, 61.39085))
sketch1.addConstraint(Sketcher.Constraint("DistanceX", 9, 3, -1, 1, 93.18759))
sketch1.addConstraint(Sketcher.Constraint("DistanceX", 11, 3, -1, 1, 88.33312))
sketch1.addConstraint(Sketcher.Constraint("DistanceY", -1, 1, 11, 3, 28.701171))
sketch1.addConstraint(Sketcher.Constraint("DistanceX", 13, 3, -1, 1, 95.53473))
sketch1.addConstraint(Sketcher.Constraint("DistanceY", 29, 3, -1, 1, 92.878939))
sketch1.addConstraint(Sketcher.Constraint("DistanceX", 1, 2, -1, 1, 9.749331))
sketch1.addConstraint(Sketcher.Constraint("DistanceY", -1, 1, 2, 1, 108.172481))
sketch1.addConstraint(Sketcher.Constraint("DistanceX", 7, 2, -1, 1, 82.315821))
sketch1.addConstraint(Sketcher.Constraint("DistanceX", 14, 3, -1, 1, 130.662177))
pad1 = body.newObject("PartDesign::Pad", "Pad")
pad1.Profile = sketch1
pad1.Length = Q("2 in")

# Sketch on XY plane
sketch2 = body.newObject("Sketcher::SketchObject", "Sketch001")
sketch2.AttachmentSupport = (doc.getObject("XY_Plane"), [""])
sketch2.MapMode = "FlatFace"
sketch2.addGeometry(Part.Circle(App.Vector(0, 0, 0), App.Vector(0, 0, 1), 8.6), False)
sketch2.addGeometry(Part.Circle(App.Vector(0, 26.2, 0), App.Vector(0, 0, 1), 4.1), False)
sketch2.addConstraint(Sketcher.Constraint("Coincident", 0, 3, -1, 1))
sketch2.addConstraint(Sketcher.Constraint("PointOnObject", 1, 3, -2))
sketch2.addConstraint(Sketcher.Constraint("Diameter", 0, Q("0.68 in")))
sketch2.addConstraint(Sketcher.Constraint("Diameter", 1, Q("0.32 in")))
sketch2.addConstraint(Sketcher.Constraint("DistanceY", -1, 1, 1, 3, Q("1.03 in")))
pocket1 = body.newObject("PartDesign::Pocket", "Pocket")
pocket1.Profile = sketch2
pocket1.Length = Q("2 in")
pocket1.Reversed = True
doc.recompute()

polarpattern = body.newObject("PartDesign::PolarPattern", "PolarPattern")
polarpattern.Originals = [pocket1]
polarpattern.Axis = (doc.getObject("Z_Axis"), [""])
polarpattern.Angle = 360
polarpattern.Occurrences = 4
body.Tip = polarpattern

doc.recompute()
